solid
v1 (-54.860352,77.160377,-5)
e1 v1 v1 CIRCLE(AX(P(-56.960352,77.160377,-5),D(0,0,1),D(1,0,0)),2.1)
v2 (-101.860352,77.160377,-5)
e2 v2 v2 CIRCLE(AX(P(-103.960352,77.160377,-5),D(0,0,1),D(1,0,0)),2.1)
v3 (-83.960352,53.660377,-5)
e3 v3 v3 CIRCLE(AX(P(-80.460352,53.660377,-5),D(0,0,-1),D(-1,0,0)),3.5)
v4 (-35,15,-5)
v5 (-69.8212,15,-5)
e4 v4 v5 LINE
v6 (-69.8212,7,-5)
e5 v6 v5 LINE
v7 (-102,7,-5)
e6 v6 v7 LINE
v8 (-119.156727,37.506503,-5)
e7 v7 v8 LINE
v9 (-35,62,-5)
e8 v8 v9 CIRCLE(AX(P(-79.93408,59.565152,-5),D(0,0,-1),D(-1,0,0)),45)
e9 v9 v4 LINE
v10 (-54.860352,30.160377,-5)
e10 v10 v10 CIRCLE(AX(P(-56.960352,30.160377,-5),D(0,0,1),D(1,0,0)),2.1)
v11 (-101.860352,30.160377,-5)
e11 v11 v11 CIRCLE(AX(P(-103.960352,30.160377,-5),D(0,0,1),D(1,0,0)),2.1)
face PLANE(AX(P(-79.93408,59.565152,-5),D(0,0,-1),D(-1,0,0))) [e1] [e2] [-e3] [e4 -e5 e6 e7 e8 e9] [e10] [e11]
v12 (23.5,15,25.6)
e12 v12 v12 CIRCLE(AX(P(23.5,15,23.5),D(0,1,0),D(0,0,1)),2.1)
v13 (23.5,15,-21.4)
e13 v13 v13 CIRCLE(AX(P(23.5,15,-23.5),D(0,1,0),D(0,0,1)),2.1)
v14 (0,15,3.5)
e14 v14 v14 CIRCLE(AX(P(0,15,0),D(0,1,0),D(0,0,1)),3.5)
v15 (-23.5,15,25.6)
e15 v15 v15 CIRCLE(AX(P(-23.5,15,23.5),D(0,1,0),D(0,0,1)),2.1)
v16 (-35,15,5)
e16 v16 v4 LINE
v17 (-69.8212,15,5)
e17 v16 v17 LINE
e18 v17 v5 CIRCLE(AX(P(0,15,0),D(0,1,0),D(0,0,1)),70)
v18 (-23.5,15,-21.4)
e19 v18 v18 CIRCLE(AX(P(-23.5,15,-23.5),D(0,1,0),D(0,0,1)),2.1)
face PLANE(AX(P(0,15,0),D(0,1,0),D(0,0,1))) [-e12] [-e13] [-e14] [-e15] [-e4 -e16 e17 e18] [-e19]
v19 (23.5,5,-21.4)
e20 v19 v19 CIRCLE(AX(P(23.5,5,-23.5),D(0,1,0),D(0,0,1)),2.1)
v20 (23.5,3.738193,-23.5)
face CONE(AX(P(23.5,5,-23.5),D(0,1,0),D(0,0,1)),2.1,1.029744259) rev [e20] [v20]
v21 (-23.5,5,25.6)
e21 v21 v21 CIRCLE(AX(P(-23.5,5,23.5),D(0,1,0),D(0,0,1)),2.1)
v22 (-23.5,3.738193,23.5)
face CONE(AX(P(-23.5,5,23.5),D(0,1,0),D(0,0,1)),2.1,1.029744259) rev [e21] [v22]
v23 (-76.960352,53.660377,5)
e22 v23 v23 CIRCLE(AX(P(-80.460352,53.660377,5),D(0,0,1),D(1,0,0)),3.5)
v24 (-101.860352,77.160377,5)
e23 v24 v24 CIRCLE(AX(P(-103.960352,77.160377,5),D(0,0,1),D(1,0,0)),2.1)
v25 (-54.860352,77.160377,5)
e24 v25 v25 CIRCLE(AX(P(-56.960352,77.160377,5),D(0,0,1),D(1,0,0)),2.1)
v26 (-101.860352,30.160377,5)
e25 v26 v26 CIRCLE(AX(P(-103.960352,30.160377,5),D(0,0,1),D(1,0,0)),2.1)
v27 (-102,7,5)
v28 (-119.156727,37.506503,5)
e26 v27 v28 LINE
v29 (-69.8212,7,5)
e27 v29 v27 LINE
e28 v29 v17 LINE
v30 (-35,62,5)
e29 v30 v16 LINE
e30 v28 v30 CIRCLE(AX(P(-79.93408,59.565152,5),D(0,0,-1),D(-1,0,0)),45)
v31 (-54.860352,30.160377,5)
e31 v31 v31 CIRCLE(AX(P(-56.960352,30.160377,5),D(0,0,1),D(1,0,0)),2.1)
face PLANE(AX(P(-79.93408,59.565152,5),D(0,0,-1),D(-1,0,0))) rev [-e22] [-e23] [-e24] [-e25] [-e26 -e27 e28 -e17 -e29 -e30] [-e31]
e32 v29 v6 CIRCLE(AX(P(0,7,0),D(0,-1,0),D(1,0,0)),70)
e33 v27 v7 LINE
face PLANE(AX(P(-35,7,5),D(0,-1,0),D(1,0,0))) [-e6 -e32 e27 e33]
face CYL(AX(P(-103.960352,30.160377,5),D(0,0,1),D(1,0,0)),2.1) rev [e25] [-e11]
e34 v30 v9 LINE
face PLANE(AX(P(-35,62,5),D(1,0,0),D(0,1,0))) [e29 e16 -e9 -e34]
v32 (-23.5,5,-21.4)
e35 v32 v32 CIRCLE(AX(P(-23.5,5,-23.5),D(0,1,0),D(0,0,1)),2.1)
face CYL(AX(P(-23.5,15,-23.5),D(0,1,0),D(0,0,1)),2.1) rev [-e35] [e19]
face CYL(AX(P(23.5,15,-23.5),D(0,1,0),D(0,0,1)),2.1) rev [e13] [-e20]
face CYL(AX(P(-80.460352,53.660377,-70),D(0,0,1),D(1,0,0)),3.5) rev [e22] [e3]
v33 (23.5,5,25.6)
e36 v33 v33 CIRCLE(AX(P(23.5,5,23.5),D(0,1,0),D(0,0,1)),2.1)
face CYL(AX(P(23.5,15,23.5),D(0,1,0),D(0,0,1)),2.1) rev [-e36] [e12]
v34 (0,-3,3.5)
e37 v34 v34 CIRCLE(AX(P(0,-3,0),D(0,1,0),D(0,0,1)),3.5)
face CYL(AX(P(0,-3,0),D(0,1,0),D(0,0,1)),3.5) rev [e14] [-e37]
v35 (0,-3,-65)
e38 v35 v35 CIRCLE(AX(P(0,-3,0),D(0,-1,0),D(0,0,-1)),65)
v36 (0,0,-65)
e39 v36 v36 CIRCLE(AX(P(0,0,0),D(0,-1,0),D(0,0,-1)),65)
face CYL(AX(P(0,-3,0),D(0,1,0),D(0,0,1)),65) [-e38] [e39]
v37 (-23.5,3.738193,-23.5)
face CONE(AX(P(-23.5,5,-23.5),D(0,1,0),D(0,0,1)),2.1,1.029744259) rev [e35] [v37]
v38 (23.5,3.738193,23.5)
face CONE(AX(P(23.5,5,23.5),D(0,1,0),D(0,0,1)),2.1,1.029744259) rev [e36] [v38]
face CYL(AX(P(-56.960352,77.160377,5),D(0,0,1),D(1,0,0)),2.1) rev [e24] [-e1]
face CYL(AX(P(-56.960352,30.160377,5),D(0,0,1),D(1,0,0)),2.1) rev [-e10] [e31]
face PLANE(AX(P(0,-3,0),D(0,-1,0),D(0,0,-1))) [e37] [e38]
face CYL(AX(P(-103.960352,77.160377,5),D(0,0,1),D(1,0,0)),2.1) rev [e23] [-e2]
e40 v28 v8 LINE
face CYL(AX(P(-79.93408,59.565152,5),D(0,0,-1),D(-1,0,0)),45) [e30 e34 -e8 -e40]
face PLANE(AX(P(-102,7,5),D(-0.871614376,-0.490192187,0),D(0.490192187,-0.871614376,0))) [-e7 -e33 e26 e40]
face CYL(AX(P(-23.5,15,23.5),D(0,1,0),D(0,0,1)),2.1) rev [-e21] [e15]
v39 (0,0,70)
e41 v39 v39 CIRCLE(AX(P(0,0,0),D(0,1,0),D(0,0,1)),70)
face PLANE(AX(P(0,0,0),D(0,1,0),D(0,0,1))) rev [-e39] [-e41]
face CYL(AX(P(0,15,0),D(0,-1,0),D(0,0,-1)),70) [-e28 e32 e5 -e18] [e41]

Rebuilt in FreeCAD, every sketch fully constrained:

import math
import FreeCAD as App
import Part
import Sketcher
Q = App.Units.Quantity

doc = App.newDocument("Part")
body = doc.addObject("PartDesign::Body", "Body")

sketch1 = body.newObject("Sketcher::SketchObject", "Sketch")
sketch1.AttachmentSupport = (doc.getObject("XZ_Plane"), [""])
sketch1.MapMode = "FlatFace"
sketch1.addGeometry(Part.Circle(App.Vector(0, 0, 0), App.Vector(0, 0, 1), 70), False)
sketch1.addConstraint(Sketcher.Constraint("Coincident", 0, 3, -1, 1))
sketch1.addConstraint(Sketcher.Constraint("Diameter", 0, Q("140 mm")))
pad1 = body.newObject("PartDesign::Pad", "Pad")
pad1.Profile = sketch1
pad1.Length = 15
pad1.Reversed = True

sketch2 = body.newObject("Sketcher::SketchObject", "Sketch001")
sketch2.AttachmentSupport = (doc.getObject("XZ_Plane"), [""])
sketch2.MapMode = "FlatFace"
sketch2.addGeometry(Part.Circle(App.Vector(0, 0, 0), App.Vector(0, 0, 1), 65), False)
sketch2.addConstraint(Sketcher.Constraint("Coincident", 0, 3, -1, 1))
sketch2.addConstraint(Sketcher.Constraint("Diameter", 0, Q("130 mm")))
pad2 = body.newObject("PartDesign::Pad", "Pad001")
pad2.Profile = sketch2
pad2.Length = 3

sketch3 = body.newObject("Sketcher::SketchObject", "Sketch002")
sketch3.AttachmentSupport = (doc.getObject("XY_Plane"), [""])
sketch3.MapMode = "FlatFace"
sketch3.addGeometry(Part.LineSegment(App.Vector(-35, 7, 0), App.Vector(-35, 62, 0)), False)
sketch3.addGeometry(Part.ArcOfCircle(Part.Circle(App.Vector(-80, 60, 0), App.Vector(0, 0, 1), 45), math.radians(3), math.radians(209)), False)
sketch3.addGeometry(Part.LineSegment(App.Vector(-119, 38, 0), App.Vector(-102, 7, 0)), False)
sketch3.addGeometry(Part.LineSegment(App.Vector(-102, 7, 0), App.Vector(-35, 7, 0)), False)
sketch3.addConstraint(Sketcher.Constraint("Coincident", 0, 2, 1, 1))
sketch3.addConstraint(Sketcher.Constraint("Tangent", 1, 2, 2, 1))
sketch3.addConstraint(Sketcher.Constraint("Coincident", 2, 2, 3, 1))
sketch3.addConstraint(Sketcher.Constraint("Coincident", 3, 2, 0, 1))
sketch3.addConstraint(Sketcher.Constraint("Vertical", 0))
sketch3.addConstraint(Sketcher.Constraint("Horizontal", 3))
sketch3.addConstraint(Sketcher.Constraint("Radius", 1, Q("45 mm")))
sketch3.addConstraint(Sketcher.Constraint("DistanceX", 3, 1, 3, 2, Q("67 mm")))
sketch3.addConstraint(Sketcher.Constraint("DistanceY", 0, 1, 0, 2, Q("55 mm")))
sketch3.addConstraint(Sketcher.Constraint("Distance", 2, Q("35 mm")))
sketch3.addConstraint(Sketcher.Constraint("DistanceX", 0, 2, -1, 1, Q("35 mm")))
sketch3.addConstraint(Sketcher.Constraint("DistanceY", -1, 1, 0, 2, Q("62 mm")))
pad3 = body.newObject("PartDesign::Pad", "Pad002")
pad3.Profile = sketch3
pad3.Length = 10
pad3.Midplane = True

sketch4 = body.newObject("Sketcher::SketchObject", "Sketch003")
sketch4.AttachmentSupport = (doc.getObject("XZ_Plane"), [""])
sketch4.MapMode = "FlatFace"
sketch4.AttachmentOffset = App.Placement(App.Vector(0, 0, -15), App.Rotation())
sketch4.addGeometry(Part.Circle(App.Vector(-23.5, -23.5, 0), App.Vector(0, 0, 1), 2.1), False)
sketch4.addGeometry(Part.Circle(App.Vector(23.5, -23.5, 0), App.Vector(0, 0, 1), 2.1), False)
sketch4.addGeometry(Part.Circle(App.Vector(23.5, 23.5, 0), App.Vector(0, 0, 1), 2.1), False)
sketch4.addGeometry(Part.Circle(App.Vector(-23.5, 23.5, 0), App.Vector(0, 0, 1), 2.1), False)
sketch4.addConstraint(Sketcher.Constraint("Equal", 0, 1))
sketch4.addConstraint(Sketcher.Constraint("Equal", 1, 2))
sketch4.addConstraint(Sketcher.Constraint("Equal", 2, 3))
sketch4.addConstraint(Sketcher.Constraint("Symmetric", 0, 3, 2, 3, -1, 1))
sketch4.addConstraint(Sketcher.Constraint("Symmetric", 1, 3, 3, 3, -1, 1))
sketch4.addConstraint(Sketcher.Constraint("Symmetric", 0, 3, 1, 3, -2))
sketch4.addConstraint(Sketcher.Constraint("Diameter", 0, Q("4.2 mm")))
sketch4.addConstraint(Sketcher.Constraint("DistanceX", 0, 3, 1, 3, Q("47 mm")))
sketch4.addConstraint(Sketcher.Constraint("DistanceY", 1, 3, 2, 3, Q("47 mm")))
doc.recompute()
hole = body.newObject("PartDesign::Hole", "Hole")
hole.Profile = sketch4
hole.ThreadType = "None"
hole.Diameter = 4.2
hole.DepthType = "Dimension"
hole.Depth = 10
hole.DrillPoint = "Angled"
hole.DrillPointAngle = 118
hole.Reversed = True

sketch5 = body.newObject("Sketcher::SketchObject", "Sketch004")
sketch5.AttachmentSupport = (doc.getObject("XZ_Plane"), [""])
sketch5.MapMode = "FlatFace"
sketch5.AttachmentOffset = App.Placement(App.Vector(0, 0, -15), App.Rotation())
sketch5.addGeometry(Part.Circle(App.Vector(0, 0, 0), App.Vector(0, 0, 1), 3.5), False)
sketch5.addConstraint(Sketcher.Constraint("Coincident", 0, 3, -1, 1))
sketch5.addConstraint(Sketcher.Constraint("Diameter", 0, Q("7 mm")))
pocket1 = body.newObject("PartDesign::Pocket", "Pocket")
pocket1.Profile = sketch5
pocket1.Type = "ThroughAll"
pocket1.Reversed = True

sketch6 = body.newObject("Sketcher::SketchObject", "Sketch005")
sketch6.AttachmentSupport = (doc.getObject("XY_Plane"), [""])
sketch6.MapMode = "FlatFace"
sketch6.AttachmentOffset = App.Placement(App.Vector(0, 0, 5), App.Rotation())
sketch6.addGeometry(Part.Circle(App.Vector(-104, 77.2, 0), App.Vector(0, 0, 1), 2.1), False)
sketch6.addGeometry(Part.Circle(App.Vector(-57, 77.2, 0), App.Vector(0, 0, 1), 2.1), False)
sketch6.addGeometry(Part.Circle(App.Vector(-57, 30.2, 0), App.Vector(0, 0, 1), 2.1), False)
sketch6.addGeometry(Part.Circle(App.Vector(-104, 30.2, 0), App.Vector(0, 0, 1), 2.1), False)
sketch6.addConstraint(Sketcher.Constraint("Equal", 0, 1))
sketch6.addConstraint(Sketcher.Constraint("Equal", 1, 2))
sketch6.addConstraint(Sketcher.Constraint("Equal", 2, 3))
sketch6.addConstraint(Sketcher.Constraint("Horizontal", 0, 3, 1, 3))
sketch6.addConstraint(Sketcher.Constraint("Horizontal", 2, 3, 3, 3))
sketch6.addConstraint(Sketcher.Constraint("Vertical", 1, 3, 2, 3))
sketch6.addConstraint(Sketcher.Constraint("Vertical", 0, 3, 3, 3))
sketch6.addConstraint(Sketcher.Constraint("Diameter", 0, Q("4.2 mm")))
sketch6.addConstraint(Sketcher.Constraint("DistanceX", 0, 3, 1, 3, Q("47 mm")))
sketch6.addConstraint(Sketcher.Constraint("DistanceY", 2, 3, 1, 3, Q("47 mm")))
sketch6.addConstraint(Sketcher.Constraint("DistanceX", 0, 3, -1, 1, Q("103.960352 mm")))
sketch6.addConstraint(Sketcher.Constraint("DistanceY", -1, 1, 0, 3, Q("77.160377 mm")))
doc.recompute()
hole2 = body.newObject("PartDesign::Hole", "Hole001")
hole2.Profile = sketch6
hole2.ThreadType = "None"
hole2.Diameter = 4.2
hole2.DepthType = "Dimension"
hole2.Depth = 10
hole2.DrillPoint = "Angled"
hole2.DrillPointAngle = 118

sketch7 = body.newObject("Sketcher::SketchObject", "Sketch006")
sketch7.AttachmentSupport = (doc.getObject("XY_Plane"), [""])
sketch7.MapMode = "FlatFace"
sketch7.AttachmentOffset = App.Placement(App.Vector(0, 0, 5), App.Rotation())
sketch7.addGeometry(Part.Circle(App.Vector(-80.5, 53.7, 0), App.Vector(0, 0, 1), 3.5), False)
sketch7.addConstraint(Sketcher.Constraint("Diameter", 0, Q("7 mm")))
sketch7.addConstraint(Sketcher.Constraint("DistanceX", 0, 3, -1, 1, Q("80.460352 mm")))
sketch7.addConstraint(Sketcher.Constraint("DistanceY", -1, 1, 0, 3, Q("53.660377 mm")))
pocket2 = body.newObject("PartDesign::Pocket", "Pocket001")
pocket2.Profile = sketch7
pocket2.Type = "ThroughAll"

doc.recompute()
